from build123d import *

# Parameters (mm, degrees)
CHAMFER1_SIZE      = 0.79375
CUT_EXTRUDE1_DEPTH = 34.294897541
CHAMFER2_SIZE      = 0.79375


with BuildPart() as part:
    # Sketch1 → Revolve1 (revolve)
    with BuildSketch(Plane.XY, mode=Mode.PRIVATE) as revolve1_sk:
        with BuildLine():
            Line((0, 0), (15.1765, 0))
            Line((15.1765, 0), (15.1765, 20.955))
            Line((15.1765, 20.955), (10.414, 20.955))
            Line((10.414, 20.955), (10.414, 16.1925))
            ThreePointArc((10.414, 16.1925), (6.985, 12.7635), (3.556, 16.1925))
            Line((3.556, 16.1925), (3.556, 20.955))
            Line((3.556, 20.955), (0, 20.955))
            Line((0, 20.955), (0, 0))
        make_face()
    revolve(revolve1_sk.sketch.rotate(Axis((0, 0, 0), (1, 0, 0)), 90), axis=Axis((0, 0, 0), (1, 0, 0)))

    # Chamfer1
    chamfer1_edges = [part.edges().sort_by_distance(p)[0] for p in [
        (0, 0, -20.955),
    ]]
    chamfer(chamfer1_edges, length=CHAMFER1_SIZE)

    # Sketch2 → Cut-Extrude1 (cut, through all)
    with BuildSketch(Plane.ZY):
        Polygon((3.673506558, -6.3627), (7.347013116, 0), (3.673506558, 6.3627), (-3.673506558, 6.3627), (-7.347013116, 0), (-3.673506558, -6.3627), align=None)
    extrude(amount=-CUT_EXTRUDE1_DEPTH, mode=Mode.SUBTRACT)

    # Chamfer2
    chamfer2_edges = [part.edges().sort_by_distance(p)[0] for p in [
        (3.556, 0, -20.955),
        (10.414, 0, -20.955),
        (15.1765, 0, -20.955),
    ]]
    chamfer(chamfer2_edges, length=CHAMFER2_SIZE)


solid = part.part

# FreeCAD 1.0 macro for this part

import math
import FreeCAD as App
import Part
import Sketcher
from FreeCAD import Vector
Q = App.Units.Quantity


def edges_at(feature, points):
    """Names of the edges that pass closest to the given points."""
    edges = feature.Shape.Edges
    near = lambda p: min(range(len(edges)), key=lambda i: edges[i].distToShape(Part.Vertex(*p))[0])
    return sorted({f"Edge{near(p) + 1}" for p in points})


def add_polygon(sketch, points):
    """Adds a closed chain of lines whose ends are joined by coincident constraints."""
    first, n = sketch.GeometryCount, len(points)
    for a, b in zip(points, points[1:] + points[:1]):
        sketch.addGeometry(Part.LineSegment(App.Vector(*a, 0), App.Vector(*b, 0)), False)
    for i in range(n):
        sketch.addConstraint(Sketcher.Constraint("Coincident", first + i, 2, first + (i + 1) % n, 1))

doc = App.newDocument("Part")
body = doc.addObject("PartDesign::Body", "Body")

sketch1 = body.newObject("Sketcher::SketchObject", "Sketch")
sketch1.AttachmentSupport = (doc.getObject("XY_Plane"), [""])
sketch1.MapMode = "FlatFace"
sketch1.addGeometry(Part.LineSegment(Vector(0, 0, 0), Vector(15.2, 0, 0)), False)
sketch1.addGeometry(Part.LineSegment(Vector(15.2, 0, 0), Vector(15.2, 21, 0)), False)
sketch1.addGeometry(Part.LineSegment(Vector(15.2, 21, 0), Vector(10.4, 21, 0)), False)
sketch1.addGeometry(Part.LineSegment(Vector(10.4, 21, 0), Vector(10.4, 16.2, 0)), False)
sketch1.addGeometry(Part.ArcOfCircle(Part.Circle(Vector(7, 16.2, 0), Vector(0, 0, 1), 3.4), math.radians(180), math.radians(360)), False)
sketch1.addGeometry(Part.LineSegment(Vector(3.6, 16.2, 0), Vector(3.6, 21, 0)), False)
sketch1.addGeometry(Part.LineSegment(Vector(3.6, 21, 0), Vector(0, 21, 0)), False)
sketch1.addGeometry(Part.LineSegment(Vector(0, 21, 0), Vector(0, 0, 0)), False)
sketch1.addConstraint(Sketcher.Constraint("Coincident", 0, 2, 1, 1))
sketch1.addConstraint(Sketcher.Constraint("Coincident", 1, 2, 2, 1))
sketch1.addConstraint(Sketcher.Constraint("Coincident", 2, 2, 3, 1))
sketch1.addConstraint(Sketcher.Constraint("Tangent", 3, 2, 4, 2))
sketch1.addConstraint(Sketcher.Constraint("Tangent", 4, 1, 5, 1))
sketch1.addConstraint(Sketcher.Constraint("Coincident", 5, 2, 6, 1))
sketch1.addConstraint(Sketcher.Constraint("Coincident", 6, 2, 7, 1))
sketch1.addConstraint(Sketcher.Constraint("Coincident", 7, 2, 0, 1))
sketch1.addConstraint(Sketcher.Constraint("Horizontal", 0))
sketch1.addConstraint(Sketcher.Constraint("Vertical", 1))
sketch1.addConstraint(Sketcher.Constraint("Horizontal", 2))
sketch1.addConstraint(Sketcher.Constraint("Vertical", 3))
sketch1.addConstraint(Sketcher.Constraint("Vertical", 5))
sketch1.addConstraint(Sketcher.Constraint("Horizontal", 6))
sketch1.addConstraint(Sketcher.Constraint("Vertical", 7))
sketch1.addConstraint(Sketcher.Constraint("Coincident", 7, 2, -1, 1))
sketch1.addConstraint(Sketcher.Constraint("Horizontal", 2, 2, 5, 2))
sketch1.addConstraint(Sketcher.Constraint("Equal", 2, 3))
sketch1.addConstraint(Sketcher.Constraint("Radius", 4, Q("0.135 in")))
sketch1.addConstraint(Sketcher.Constraint("DistanceX", 6, 2, 6, 1, Q("0.14 in")))
sketch1.addConstraint(Sketcher.Constraint("DistanceX", 2, 2, 2, 1, Q("0.1875 in")))
sketch1.addConstraint(Sketcher.Constraint("DistanceY", 1, 1, 1, 2, Q("0.825 in")))
revolution = body.newObject("PartDesign::Revolution", "Revolution")
revolution.Profile = sketch1
revolution.ReferenceAxis = (sketch1, ["H_Axis"])
revolution.Angle = 360
doc.recompute()

chamfer = body.newObject("PartDesign::Chamfer", "Chamfer")
chamfer.Base = (revolution, edges_at(revolution, [(0, 0, -20.955)]))
chamfer.Size = Q("0.03125 in")

sketch2 = body.newObject("Sketcher::SketchObject", "Sketch001")
sketch2.AttachmentSupport = (doc.getObject("YZ_Plane"), [""])
sketch2.MapMode = "FlatFace"
add_polygon(sketch2, [(-6, 4), (0, 7), (6, 4), (6, -4), (0, -7), (-6, -4)])
sketch2.addConstraint(Sketcher.Constraint("Vertical", 2))
sketch2.addConstraint(Sketcher.Constraint("Vertical", 5))
sketch2.addConstraint(Sketcher.Constraint("Symmetric", 0, 2, 3, 2, -1, 1))
sketch2.addConstraint(Sketcher.Constraint("Symmetric", 1, 2, 4, 2, -1, 1))
sketch2.addConstraint(Sketcher.Constraint("PointOnObject", 0, 2, -2))
sketch2.addConstraint(Sketcher.Constraint("Parallel", 0, 3))
sketch2.addConstraint(Sketcher.Constraint("Horizontal", 2, 2, 4, 2))
sketch2.addConstraint(Sketcher.Constraint("Angle", 0, Q("30 deg")))
sketch2.addConstraint(Sketcher.Constraint("DistanceX", 4, 2, 2, 2, Q("0.501 in")))
sketch2.addConstraint(Sketcher.Constraint("DistanceY", 2, 2, 2, 1, 7.347013))
pocket1 = body.newObject("PartDesign::Pocket", "Pocket")
pocket1.Profile = sketch2
pocket1.Type = "ThroughAll"
pocket1.Reversed = True
doc.recompute()

chamfer2 = body.newObject("PartDesign::Chamfer", "Chamfer001")
chamfer2.Base = (pocket1, edges_at(pocket1, [(3.556, 0, -20.955), (10.414, 0, -20.955), (15.177, 0, -20.955)]))
chamfer2.Size = Q("0.03125 in")

doc.recompute()
